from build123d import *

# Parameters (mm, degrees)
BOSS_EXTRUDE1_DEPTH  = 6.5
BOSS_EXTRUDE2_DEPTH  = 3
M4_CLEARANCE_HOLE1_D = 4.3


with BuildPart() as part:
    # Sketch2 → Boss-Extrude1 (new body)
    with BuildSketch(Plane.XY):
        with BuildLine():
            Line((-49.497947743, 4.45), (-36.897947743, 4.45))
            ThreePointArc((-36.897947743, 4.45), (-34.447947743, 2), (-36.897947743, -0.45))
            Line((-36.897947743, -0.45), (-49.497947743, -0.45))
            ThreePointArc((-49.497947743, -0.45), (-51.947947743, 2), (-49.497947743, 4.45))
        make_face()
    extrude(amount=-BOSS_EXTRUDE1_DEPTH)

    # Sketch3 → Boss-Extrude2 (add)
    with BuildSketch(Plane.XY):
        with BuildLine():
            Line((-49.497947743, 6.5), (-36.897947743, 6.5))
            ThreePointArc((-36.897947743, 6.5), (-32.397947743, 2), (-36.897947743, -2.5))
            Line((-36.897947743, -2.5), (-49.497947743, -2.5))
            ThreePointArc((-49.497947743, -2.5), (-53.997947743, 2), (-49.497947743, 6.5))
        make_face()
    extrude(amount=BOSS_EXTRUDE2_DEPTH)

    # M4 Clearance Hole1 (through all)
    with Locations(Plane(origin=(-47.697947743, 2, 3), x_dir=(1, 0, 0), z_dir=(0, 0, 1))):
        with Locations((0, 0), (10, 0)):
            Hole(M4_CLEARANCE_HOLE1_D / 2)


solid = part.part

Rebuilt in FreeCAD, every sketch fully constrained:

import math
import FreeCAD as App
import Part
import Sketcher
from FreeCAD import Vector

doc = App.newDocument("Part")
body = doc.addObject("PartDesign::Body", "Body")

sketch1 = body.newObject("Sketcher::SketchObject", "Sketch")
sketch1.AttachmentSupport = (doc.getObject("XY_Plane"), [""])
sketch1.MapMode = "FlatFace"
sketch1.addGeometry(Part.LineSegment(Vector(-36.9, 4.5, 0), Vector(-49.5, 4.5, 0)), False)
sketch1.addGeometry(Part.ArcOfCircle(Part.Circle(Vector(-49.5, 2, 0), Vector(0, 0, 1), 2.5), math.radians(90), math.radians(270)), False)
sketch1.addGeometry(Part.LineSegment(Vector(-49.5, -0.5, 0), Vector(-36.9, -0.5, 0)), False)
sketch1.addGeometry(Part.ArcOfCircle(Part.Circle(Vector(-36.9, 2, 0), Vector(0, 0, 1), 2.5), math.radians(-90), math.radians(90)), False)
sketch1.addConstraint(Sketcher.Constraint("Tangent", 0, 2, 1, 1))
sketch1.addConstraint(Sketcher.Constraint("Tangent", 1, 2, 2, 1))
sketch1.addConstraint(Sketcher.Constraint("Tangent", 2, 2, 3, 1))
sketch1.addConstraint(Sketcher.Constraint("Tangent", 3, 2, 0, 1))
sketch1.addConstraint(Sketcher.Constraint("Horizontal", 0))
sketch1.addConstraint(Sketcher.Constraint("Horizontal", 2))
sketch1.addConstraint(Sketcher.Constraint("Radius", 1, 2.45))
sketch1.addConstraint(Sketcher.Constraint("DistanceX", 0, 2, 0, 1, 12.6))
sketch1.addConstraint(Sketcher.Constraint("DistanceY", -1, 1, 1, 3, 2.0))
sketch1.addConstraint(Sketcher.Constraint("DistanceX", 1, 3, -1, 1, 49.497948))
pad1 = body.newObject("PartDesign::Pad", "Pad")
pad1.Profile = sketch1
pad1.Length = 6.5
pad1.Reversed = True

sketch2 = body.newObject("Sketcher::SketchObject", "Sketch001")
sketch2.AttachmentSupport = (doc.getObject("XY_Plane"), [""])
sketch2.MapMode = "FlatFace"
sketch2.addGeometry(Part.LineSegment(Vector(-36.9, 6.5, 0), Vector(-49.5, 6.5, 0)), False)
sketch2.addGeometry(Part.ArcOfCircle(Part.Circle(Vector(-49.5, 2, 0), Vector(0, 0, 1), 4.5), math.radians(90), math.radians(270)), False)
sketch2.addGeometry(Part.LineSegment(Vector(-49.5, -2.5, 0), Vector(-36.9, -2.5, 0)), False)
sketch2.addGeometry(Part.ArcOfCircle(Part.Circle(Vector(-36.9, 2, 0), Vector(0, 0, 1), 4.5), math.radians(-90), math.radians(90)), False)
sketch2.addConstraint(Sketcher.Constraint("Tangent", 0, 2, 1, 1))
sketch2.addConstraint(Sketcher.Constraint("Tangent", 1, 2, 2, 1))
sketch2.addConstraint(Sketcher.Constraint("Tangent", 2, 2, 3, 1))
sketch2.addConstraint(Sketcher.Constraint("Tangent", 3, 2, 0, 1))
sketch2.addConstraint(Sketcher.Constraint("Horizontal", 0))
sketch2.addConstraint(Sketcher.Constraint("Horizontal", 2))
sketch2.addConstraint(Sketcher.Constraint("Radius", 1, 4.5))
sketch2.addConstraint(Sketcher.Constraint("DistanceX", 0, 2, 0, 1, 12.6))
sketch2.addConstraint(Sketcher.Constraint("DistanceY", -1, 1, 1, 3, 2.0))
sketch2.addConstraint(Sketcher.Constraint("DistanceX", 1, 3, -1, 1, 49.497948))
pad2 = body.newObject("PartDesign::Pad", "Pad001")
pad2.Profile = sketch2
pad2.Length = 3

sketch3 = body.newObject("Sketcher::SketchObject", "Sketch002")
sketch3.AttachmentSupport = (doc.getObject("XY_Plane"), [""])
sketch3.MapMode = "FlatFace"
sketch3.AttachmentOffset = App.Placement(Vector(0, 0, 3), App.Rotation())
sketch3.addGeometry(Part.Circle(Vector(-47.7, 2, 0), Vector(0, 0, 1), 2.1), False)
sketch3.addGeometry(Part.Circle(Vector(-37.7, 2, 0), Vector(0, 0, 1), 2.1), False)
sketch3.addConstraint(Sketcher.Constraint("Equal", 0, 1))
sketch3.addConstraint(Sketcher.Constraint("Horizontal", 0, 3, 1, 3))
sketch3.addConstraint(Sketcher.Constraint("Diameter", 0, 4.3))
sketch3.addConstraint(Sketcher.Constraint("DistanceY", -1, 1, 0, 3, 2.0))
sketch3.addConstraint(Sketcher.Constraint("DistanceX", 0, 3, 1, 3, 10.0))
sketch3.addConstraint(Sketcher.Constraint("DistanceX", 0, 3, -1, 1, 47.697948))
doc.recompute()
hole = body.newObject("PartDesign::Hole", "Hole")
hole.Profile = sketch3
hole.ThreadType = "None"
hole.Diameter = 4.3
hole.DepthType = "ThroughAll"

doc.recompute()
